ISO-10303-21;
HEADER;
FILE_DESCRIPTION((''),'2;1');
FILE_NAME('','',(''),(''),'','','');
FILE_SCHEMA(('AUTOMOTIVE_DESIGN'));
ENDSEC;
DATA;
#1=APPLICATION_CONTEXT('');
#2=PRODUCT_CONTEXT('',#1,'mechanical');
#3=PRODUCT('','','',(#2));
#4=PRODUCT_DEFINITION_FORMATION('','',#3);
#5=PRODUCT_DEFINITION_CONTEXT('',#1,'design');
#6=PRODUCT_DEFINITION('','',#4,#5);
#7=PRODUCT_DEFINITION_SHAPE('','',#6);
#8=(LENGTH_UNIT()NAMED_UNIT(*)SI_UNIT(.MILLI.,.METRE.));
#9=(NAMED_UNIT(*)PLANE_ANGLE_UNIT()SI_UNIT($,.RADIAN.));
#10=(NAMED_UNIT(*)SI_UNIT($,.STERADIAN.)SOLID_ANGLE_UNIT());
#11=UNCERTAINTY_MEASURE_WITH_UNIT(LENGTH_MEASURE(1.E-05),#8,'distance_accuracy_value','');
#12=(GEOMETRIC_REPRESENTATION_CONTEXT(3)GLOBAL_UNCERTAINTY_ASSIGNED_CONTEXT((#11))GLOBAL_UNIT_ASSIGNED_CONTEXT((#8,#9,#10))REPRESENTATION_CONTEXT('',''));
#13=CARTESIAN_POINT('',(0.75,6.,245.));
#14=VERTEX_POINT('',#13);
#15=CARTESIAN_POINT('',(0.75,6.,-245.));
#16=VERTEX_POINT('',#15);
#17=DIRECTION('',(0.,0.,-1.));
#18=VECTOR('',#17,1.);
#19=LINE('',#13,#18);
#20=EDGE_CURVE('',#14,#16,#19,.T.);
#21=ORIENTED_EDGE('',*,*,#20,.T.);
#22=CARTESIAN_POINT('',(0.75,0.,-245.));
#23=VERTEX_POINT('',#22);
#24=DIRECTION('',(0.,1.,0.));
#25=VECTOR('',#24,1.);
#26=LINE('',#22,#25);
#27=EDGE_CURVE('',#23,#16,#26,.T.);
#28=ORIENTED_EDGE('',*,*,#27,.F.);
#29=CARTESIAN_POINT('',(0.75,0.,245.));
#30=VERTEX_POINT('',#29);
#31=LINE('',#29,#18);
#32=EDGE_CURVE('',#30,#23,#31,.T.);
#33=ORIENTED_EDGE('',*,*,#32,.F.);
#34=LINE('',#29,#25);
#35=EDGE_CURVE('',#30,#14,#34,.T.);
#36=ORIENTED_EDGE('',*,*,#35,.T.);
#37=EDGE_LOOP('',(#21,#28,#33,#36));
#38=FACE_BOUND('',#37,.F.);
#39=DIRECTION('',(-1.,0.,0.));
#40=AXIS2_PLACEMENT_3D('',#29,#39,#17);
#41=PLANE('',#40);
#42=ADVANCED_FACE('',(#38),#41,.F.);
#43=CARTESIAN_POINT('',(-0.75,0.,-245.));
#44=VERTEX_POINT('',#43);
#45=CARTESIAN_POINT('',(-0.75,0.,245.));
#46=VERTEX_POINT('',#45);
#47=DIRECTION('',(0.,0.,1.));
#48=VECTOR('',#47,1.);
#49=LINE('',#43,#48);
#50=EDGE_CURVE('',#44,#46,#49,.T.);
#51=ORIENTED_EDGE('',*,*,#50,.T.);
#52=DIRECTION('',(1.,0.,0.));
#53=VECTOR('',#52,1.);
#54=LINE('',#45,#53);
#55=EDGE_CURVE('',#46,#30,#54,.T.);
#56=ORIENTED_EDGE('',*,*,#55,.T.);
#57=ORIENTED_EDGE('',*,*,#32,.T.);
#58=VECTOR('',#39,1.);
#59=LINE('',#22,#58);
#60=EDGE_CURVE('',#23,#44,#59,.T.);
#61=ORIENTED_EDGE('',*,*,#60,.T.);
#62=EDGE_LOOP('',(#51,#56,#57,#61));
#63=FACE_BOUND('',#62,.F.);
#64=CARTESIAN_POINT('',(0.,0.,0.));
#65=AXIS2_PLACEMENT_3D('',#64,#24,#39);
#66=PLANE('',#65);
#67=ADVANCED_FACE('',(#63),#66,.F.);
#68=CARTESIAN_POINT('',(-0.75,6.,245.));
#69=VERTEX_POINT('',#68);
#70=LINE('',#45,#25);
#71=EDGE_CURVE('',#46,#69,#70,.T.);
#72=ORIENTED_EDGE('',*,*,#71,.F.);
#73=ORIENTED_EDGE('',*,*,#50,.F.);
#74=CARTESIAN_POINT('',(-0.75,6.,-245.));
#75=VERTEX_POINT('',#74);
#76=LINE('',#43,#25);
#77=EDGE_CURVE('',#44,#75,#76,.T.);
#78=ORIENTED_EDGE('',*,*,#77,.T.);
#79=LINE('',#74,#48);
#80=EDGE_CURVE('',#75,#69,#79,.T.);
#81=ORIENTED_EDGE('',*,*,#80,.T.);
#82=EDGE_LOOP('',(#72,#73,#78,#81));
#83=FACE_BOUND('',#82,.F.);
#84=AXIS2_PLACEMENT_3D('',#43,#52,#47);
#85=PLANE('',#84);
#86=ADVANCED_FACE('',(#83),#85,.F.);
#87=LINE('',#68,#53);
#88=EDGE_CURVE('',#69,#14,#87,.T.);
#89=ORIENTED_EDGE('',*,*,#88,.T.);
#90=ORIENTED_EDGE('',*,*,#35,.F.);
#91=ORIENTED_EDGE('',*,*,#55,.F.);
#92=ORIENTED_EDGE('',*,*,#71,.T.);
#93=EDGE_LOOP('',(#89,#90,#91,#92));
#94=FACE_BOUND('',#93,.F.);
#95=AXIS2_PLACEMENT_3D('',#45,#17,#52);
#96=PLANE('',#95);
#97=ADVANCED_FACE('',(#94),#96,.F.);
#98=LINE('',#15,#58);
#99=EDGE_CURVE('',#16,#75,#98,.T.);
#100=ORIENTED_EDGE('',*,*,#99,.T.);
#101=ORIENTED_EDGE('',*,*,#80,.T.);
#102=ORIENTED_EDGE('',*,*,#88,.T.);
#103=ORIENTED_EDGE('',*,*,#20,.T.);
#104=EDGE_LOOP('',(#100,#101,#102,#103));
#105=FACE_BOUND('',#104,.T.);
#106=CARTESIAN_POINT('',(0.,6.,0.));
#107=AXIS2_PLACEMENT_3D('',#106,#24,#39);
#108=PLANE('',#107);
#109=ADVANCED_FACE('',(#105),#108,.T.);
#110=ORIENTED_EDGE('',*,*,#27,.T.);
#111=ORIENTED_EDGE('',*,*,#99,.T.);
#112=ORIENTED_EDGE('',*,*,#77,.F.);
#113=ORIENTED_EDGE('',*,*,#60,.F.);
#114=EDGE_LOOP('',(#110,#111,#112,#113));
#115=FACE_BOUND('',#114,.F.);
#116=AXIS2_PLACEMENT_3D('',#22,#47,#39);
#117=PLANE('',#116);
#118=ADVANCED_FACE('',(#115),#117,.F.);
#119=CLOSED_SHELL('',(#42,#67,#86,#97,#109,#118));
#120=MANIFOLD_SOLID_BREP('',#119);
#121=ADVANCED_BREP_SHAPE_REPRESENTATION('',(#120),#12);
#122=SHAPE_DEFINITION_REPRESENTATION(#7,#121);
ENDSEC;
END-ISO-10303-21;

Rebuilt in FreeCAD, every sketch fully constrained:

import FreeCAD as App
import Part
import Sketcher
from FreeCAD import Vector
Q = App.Units.Quantity

doc = App.newDocument("Part")
params = doc.addObject("Spreadsheet::Sheet", "Params")
for row, (alias, value) in enumerate([
    ("sketch1_height", "490 mm"),
    ("sketch1_width", "1.5 mm"),
    ("pad1_length", "6 mm"),
], start=1):
    params.set(f"A{row}", alias)
    params.set(f"B{row}", "=" + value)
    params.setAlias(f"B{row}", alias)

body = doc.addObject("PartDesign::Body", "Body")

# Sketch on XZ plane
sketch1 = body.newObject("Sketcher::SketchObject", "Sketch")
sketch1.AttachmentSupport = (doc.getObject("XZ_Plane"), [""])
sketch1.MapMode = "FlatFace"
sketch1.addGeometry([
    Part.LineSegment(Vector(0.8, 245, 0), Vector(0.8, -245, 0)),
    Part.LineSegment(Vector(0.8, -245, 0), Vector(-0.8, -245, 0)),
    Part.LineSegment(Vector(-0.8, -245, 0), Vector(-0.8, 245, 0)),
    Part.LineSegment(Vector(-0.8, 245, 0), Vector(0.8, 245, 0)),
], False)
sketch1.addConstraint([
    Sketcher.Constraint("Coincident", 0, 2, 1, 1),
    Sketcher.Constraint("Coincident", 1, 2, 2, 1),
    Sketcher.Constraint("Coincident", 2, 2, 3, 1),
    Sketcher.Constraint("Coincident", 3, 2, 0, 1),
    Sketcher.Constraint("Vertical", 0),
    Sketcher.Constraint("Horizontal", 1),
    Sketcher.Constraint("Vertical", 2),
    Sketcher.Constraint("Horizontal", 3),
    Sketcher.Constraint("Symmetric", 0, 2, 2, 2, -1, 1),
    Sketcher.Constraint("DistanceY", 0, 2, 0, 1, Q("490 mm")),
    Sketcher.Constraint("DistanceX", 1, 2, 1, 1, Q("1.5 mm")),
])
sketch1.setExpression("Constraints[9]", "Params.sketch1_height")
sketch1.setExpression("Constraints[10]", "Params.sketch1_width")
pad1 = body.newObject("PartDesign::Pad", "Pad")
pad1.Profile = sketch1
pad1.setExpression("Length", "Params.pad1_length")
pad1.Reversed = True

doc.recompute()
